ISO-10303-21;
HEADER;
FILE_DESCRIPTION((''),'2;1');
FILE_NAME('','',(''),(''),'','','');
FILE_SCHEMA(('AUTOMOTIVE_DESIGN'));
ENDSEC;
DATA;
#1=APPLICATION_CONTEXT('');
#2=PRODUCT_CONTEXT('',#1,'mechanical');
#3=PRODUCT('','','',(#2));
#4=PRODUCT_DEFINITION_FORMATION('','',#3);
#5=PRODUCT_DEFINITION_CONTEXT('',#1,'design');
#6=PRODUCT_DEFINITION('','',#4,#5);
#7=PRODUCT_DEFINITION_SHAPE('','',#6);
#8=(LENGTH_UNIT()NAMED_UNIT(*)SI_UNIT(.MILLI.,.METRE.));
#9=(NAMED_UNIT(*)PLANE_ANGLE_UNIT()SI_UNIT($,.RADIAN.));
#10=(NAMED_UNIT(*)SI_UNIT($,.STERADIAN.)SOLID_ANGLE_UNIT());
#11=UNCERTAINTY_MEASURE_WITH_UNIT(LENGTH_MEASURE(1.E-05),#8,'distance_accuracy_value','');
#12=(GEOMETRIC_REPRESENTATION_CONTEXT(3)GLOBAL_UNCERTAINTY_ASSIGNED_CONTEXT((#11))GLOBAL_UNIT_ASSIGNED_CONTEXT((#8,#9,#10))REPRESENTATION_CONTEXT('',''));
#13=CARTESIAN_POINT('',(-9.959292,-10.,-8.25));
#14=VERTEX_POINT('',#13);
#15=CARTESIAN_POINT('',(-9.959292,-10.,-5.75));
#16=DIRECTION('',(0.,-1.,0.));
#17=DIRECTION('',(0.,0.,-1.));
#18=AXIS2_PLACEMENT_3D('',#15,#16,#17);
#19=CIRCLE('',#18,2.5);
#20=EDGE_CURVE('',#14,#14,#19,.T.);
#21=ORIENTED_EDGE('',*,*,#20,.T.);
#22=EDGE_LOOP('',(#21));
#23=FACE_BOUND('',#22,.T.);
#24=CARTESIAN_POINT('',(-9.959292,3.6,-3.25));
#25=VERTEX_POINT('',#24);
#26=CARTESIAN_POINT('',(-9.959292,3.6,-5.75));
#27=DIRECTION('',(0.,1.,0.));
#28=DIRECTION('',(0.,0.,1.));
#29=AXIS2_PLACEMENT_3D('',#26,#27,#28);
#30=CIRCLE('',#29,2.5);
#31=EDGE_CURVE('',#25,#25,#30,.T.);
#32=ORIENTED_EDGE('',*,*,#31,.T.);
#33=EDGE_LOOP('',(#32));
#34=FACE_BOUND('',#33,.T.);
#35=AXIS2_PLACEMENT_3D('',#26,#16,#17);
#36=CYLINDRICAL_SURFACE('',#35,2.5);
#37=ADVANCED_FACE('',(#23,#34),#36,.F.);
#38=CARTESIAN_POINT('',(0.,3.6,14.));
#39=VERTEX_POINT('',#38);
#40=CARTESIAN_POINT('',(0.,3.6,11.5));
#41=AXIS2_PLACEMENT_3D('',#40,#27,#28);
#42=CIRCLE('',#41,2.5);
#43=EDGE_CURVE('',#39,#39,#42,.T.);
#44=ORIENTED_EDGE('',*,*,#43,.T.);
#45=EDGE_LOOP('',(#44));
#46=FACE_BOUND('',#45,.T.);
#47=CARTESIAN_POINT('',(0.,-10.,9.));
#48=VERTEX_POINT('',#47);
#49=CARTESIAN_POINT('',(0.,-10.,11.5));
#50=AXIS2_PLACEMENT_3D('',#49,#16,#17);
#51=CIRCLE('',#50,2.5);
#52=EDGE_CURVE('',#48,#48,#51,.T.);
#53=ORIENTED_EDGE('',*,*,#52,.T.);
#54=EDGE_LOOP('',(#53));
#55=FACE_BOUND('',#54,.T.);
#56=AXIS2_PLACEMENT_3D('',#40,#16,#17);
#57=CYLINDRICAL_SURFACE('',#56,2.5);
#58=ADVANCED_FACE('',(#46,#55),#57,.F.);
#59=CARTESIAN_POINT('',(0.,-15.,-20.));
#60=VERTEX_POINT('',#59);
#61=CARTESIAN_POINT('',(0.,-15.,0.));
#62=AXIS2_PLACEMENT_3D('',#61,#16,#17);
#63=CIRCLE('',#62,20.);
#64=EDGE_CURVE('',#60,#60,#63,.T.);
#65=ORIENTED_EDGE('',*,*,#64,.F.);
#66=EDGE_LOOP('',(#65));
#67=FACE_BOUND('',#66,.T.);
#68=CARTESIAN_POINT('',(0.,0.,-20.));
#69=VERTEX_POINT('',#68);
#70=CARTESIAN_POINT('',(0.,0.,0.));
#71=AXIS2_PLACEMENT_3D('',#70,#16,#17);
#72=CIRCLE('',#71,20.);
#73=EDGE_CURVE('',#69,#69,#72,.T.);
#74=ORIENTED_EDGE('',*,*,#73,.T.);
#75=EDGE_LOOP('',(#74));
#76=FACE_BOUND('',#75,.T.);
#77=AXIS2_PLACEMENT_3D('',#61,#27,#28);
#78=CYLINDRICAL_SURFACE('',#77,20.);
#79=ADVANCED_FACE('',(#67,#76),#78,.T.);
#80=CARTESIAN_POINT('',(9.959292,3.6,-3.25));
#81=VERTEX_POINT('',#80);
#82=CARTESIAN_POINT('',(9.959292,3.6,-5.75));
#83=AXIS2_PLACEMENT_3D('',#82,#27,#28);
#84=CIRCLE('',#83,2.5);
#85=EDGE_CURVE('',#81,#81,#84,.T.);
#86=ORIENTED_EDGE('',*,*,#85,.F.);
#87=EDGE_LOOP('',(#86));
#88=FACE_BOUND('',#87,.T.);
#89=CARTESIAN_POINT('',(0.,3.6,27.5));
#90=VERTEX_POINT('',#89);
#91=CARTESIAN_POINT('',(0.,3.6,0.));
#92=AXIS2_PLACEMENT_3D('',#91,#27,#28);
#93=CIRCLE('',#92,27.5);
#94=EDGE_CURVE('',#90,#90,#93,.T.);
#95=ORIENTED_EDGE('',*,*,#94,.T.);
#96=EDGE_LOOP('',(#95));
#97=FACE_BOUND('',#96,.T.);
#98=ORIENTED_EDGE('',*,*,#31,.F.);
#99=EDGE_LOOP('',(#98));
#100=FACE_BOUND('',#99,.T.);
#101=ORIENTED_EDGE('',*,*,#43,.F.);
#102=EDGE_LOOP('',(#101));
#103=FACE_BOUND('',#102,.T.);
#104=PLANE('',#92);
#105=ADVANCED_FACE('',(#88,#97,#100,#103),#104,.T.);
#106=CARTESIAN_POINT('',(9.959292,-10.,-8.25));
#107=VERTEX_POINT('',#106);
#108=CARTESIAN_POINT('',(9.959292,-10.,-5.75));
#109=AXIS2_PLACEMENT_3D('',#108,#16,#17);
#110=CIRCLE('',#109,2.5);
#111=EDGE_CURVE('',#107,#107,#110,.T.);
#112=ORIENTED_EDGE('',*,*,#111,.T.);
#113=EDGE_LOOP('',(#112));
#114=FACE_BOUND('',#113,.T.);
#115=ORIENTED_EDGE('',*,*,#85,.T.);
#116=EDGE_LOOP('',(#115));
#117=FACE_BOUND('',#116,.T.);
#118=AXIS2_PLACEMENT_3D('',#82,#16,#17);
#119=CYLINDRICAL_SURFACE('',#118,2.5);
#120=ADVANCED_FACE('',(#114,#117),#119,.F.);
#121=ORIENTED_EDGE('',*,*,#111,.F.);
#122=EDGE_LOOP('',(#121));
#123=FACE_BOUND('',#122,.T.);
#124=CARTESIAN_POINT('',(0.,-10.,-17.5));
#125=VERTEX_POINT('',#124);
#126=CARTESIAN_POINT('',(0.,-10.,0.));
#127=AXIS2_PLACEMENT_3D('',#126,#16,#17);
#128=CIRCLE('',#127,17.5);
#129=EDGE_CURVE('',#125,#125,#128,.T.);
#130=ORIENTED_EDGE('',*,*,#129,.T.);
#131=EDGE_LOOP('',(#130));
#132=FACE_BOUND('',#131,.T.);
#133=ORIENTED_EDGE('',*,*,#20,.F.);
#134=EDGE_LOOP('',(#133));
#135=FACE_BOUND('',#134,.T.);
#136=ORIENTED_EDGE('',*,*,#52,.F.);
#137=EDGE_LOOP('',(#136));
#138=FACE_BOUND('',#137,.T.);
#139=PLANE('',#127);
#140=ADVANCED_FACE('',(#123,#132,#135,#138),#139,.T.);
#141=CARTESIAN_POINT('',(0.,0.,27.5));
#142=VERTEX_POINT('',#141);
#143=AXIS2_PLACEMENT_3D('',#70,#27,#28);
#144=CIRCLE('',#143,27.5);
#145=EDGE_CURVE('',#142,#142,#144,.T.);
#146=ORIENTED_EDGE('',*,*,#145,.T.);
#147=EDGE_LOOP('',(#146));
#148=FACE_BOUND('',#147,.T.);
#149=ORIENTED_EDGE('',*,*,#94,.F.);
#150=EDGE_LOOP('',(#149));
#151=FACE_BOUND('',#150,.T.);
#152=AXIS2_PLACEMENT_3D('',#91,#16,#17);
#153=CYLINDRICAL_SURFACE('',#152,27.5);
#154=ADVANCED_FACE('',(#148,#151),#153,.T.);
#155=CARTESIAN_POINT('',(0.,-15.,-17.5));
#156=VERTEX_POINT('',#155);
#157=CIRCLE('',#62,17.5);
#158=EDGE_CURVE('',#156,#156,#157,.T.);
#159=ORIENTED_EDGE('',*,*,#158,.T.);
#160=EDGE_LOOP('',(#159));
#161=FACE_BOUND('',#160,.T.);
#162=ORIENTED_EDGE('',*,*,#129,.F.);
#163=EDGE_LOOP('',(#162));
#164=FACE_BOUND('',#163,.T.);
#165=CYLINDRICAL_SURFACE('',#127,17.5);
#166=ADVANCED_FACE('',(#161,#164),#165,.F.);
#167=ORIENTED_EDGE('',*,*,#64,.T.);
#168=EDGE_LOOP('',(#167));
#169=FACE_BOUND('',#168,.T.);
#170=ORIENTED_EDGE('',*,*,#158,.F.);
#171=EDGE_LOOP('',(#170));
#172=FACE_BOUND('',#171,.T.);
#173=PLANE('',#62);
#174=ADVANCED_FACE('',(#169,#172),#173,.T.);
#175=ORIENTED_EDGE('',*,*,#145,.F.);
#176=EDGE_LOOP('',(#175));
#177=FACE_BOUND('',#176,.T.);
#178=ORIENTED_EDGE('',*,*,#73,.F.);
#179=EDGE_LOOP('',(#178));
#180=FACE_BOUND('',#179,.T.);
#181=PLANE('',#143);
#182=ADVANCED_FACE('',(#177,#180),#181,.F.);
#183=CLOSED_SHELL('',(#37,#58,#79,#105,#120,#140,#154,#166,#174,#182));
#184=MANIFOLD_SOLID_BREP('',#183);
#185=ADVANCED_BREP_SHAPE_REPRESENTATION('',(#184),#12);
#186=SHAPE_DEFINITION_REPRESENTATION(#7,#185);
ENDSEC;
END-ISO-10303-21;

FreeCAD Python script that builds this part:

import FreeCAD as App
import Part
import Sketcher

doc = App.newDocument("Part")
params = doc.addObject("Spreadsheet::Sheet", "Params")
for row, (alias, value) in enumerate([
    ("sketch1_diameter", "55 mm"),
    ("sketch1_diameter2", "5 mm"),
    ("pad1_length", "3.6 mm"),
    ("sketch2_diameter", "40 mm"),
    ("sketch2_diameter2", "5 mm"),
    ("pad2_length", "15 mm"),
    ("sketch3_diameter", "35 mm"),
    ("pocket1_length", "5 mm"),
], start=1):
    params.set(f"A{row}", alias)
    params.set(f"B{row}", "=" + value)
    params.setAlias(f"B{row}", alias)

body = doc.addObject("PartDesign::Body", "Body")

sketch1 = doc.addObject("Sketcher::SketchObject", "Sketch")
body.addObject(sketch1)
sketch1.AttachmentSupport = (doc.XZ_Plane, [""])
sketch1.MapMode = "FlatFace"
sketch1.addGeometry(Part.Circle(App.Vector(0, 0, 0), App.Vector(0, 0, 1), 27.5), False)
sketch1.addGeometry(Part.Circle(App.Vector(0, 11.5, 0), App.Vector(0, 0, 1), 2.5), False)
sketch1.addGeometry(Part.Circle(App.Vector(-10, -5.8, 0), App.Vector(0, 0, 1), 2.5), False)
sketch1.addGeometry(Part.Circle(App.Vector(10, -5.8, 0), App.Vector(0, 0, 1), 2.5), False)
sketch1.addConstraint(Sketcher.Constraint("Coincident", 0, 3, -1, 1))
sketch1.addConstraint(Sketcher.Constraint("Equal", 1, 2))
sketch1.addConstraint(Sketcher.Constraint("Equal", 2, 3))
sketch1.addConstraint(Sketcher.Constraint("Symmetric", 2, 3, 3, 3, -2))
sketch1.addConstraint(Sketcher.Constraint("PointOnObject", 1, 3, -2))
sketch1.addConstraint(Sketcher.Constraint("Diameter", 0, 55.0))
sketch1.addConstraint(Sketcher.Constraint("Diameter", 1, 5.0))
sketch1.addConstraint(Sketcher.Constraint("DistanceY", -1, 1, 1, 3, 11.5))
sketch1.addConstraint(Sketcher.Constraint("DistanceY", 2, 3, -1, 1, 5.75))
sketch1.addConstraint(Sketcher.Constraint("DistanceX", 2, 3, -1, 1, 9.959292))
sketch1.setExpression("Constraints[5]", "Params.sketch1_diameter")
sketch1.setExpression("Constraints[6]", "Params.sketch1_diameter2")
pad1 = doc.addObject("PartDesign::Pad", "Pad")
body.addObject(pad1)
pad1.Profile = sketch1
pad1.setExpression("Length", "Params.pad1_length")
pad1.Reversed = True

sketch2 = doc.addObject("Sketcher::SketchObject", "Sketch001")
body.addObject(sketch2)
sketch2.AttachmentSupport = (doc.XZ_Plane, [""])
sketch2.MapMode = "FlatFace"
sketch2.addGeometry(Part.Circle(App.Vector(0, 0, 0), App.Vector(0, 0, 1), 20), False)
sketch2.addGeometry(Part.Circle(App.Vector(-10, -5.8, 0), App.Vector(0, 0, 1), 2.5), False)
sketch2.addGeometry(Part.Circle(App.Vector(10, -5.8, 0), App.Vector(0, 0, 1), 2.5), False)
sketch2.addGeometry(Part.Circle(App.Vector(0, 11.5, 0), App.Vector(0, 0, 1), 2.5), False)
sketch2.addConstraint(Sketcher.Constraint("Coincident", 0, 3, -1, 1))
sketch2.addConstraint(Sketcher.Constraint("Equal", 1, 2))
sketch2.addConstraint(Sketcher.Constraint("Equal", 2, 3))
sketch2.addConstraint(Sketcher.Constraint("Symmetric", 1, 3, 2, 3, -2))
sketch2.addConstraint(Sketcher.Constraint("PointOnObject", 3, 3, -2))
sketch2.addConstraint(Sketcher.Constraint("Diameter", 0, 40.0))
sketch2.addConstraint(Sketcher.Constraint("Diameter", 1, 5.0))
sketch2.addConstraint(Sketcher.Constraint("DistanceY", -1, 1, 3, 3, 11.5))
sketch2.addConstraint(Sketcher.Constraint("DistanceY", 1, 3, -1, 1, 5.75))
sketch2.addConstraint(Sketcher.Constraint("DistanceX", 1, 3, -1, 1, 9.959292))
sketch2.setExpression("Constraints[5]", "Params.sketch2_diameter")
sketch2.setExpression("Constraints[6]", "Params.sketch2_diameter2")
pad2 = doc.addObject("PartDesign::Pad", "Pad001")
body.addObject(pad2)
pad2.Profile = sketch2
pad2.setExpression("Length", "Params.pad2_length")

sketch3 = doc.addObject("Sketcher::SketchObject", "Sketch002")
body.addObject(sketch3)
sketch3.AttachmentSupport = (doc.XZ_Plane, [""])
sketch3.MapMode = "FlatFace"
sketch3.AttachmentOffset = App.Placement(App.Vector(0, 0, 15), App.Rotation())
sketch3.addGeometry(Part.Circle(App.Vector(0, 0, 0), App.Vector(0, 0, 1), 18), False)
sketch3.addConstraint(Sketcher.Constraint("Coincident", 0, 3, -1, 1))
sketch3.addConstraint(Sketcher.Constraint("Diameter", 0, 35.0))
sketch3.setExpression("Constraints[1]", "Params.sketch3_diameter")
pocket1 = doc.addObject("PartDesign::Pocket", "Pocket")
body.addObject(pocket1)
pocket1.Profile = sketch3
pocket1.setExpression("Length", "Params.pocket1_length")

doc.recompute()
